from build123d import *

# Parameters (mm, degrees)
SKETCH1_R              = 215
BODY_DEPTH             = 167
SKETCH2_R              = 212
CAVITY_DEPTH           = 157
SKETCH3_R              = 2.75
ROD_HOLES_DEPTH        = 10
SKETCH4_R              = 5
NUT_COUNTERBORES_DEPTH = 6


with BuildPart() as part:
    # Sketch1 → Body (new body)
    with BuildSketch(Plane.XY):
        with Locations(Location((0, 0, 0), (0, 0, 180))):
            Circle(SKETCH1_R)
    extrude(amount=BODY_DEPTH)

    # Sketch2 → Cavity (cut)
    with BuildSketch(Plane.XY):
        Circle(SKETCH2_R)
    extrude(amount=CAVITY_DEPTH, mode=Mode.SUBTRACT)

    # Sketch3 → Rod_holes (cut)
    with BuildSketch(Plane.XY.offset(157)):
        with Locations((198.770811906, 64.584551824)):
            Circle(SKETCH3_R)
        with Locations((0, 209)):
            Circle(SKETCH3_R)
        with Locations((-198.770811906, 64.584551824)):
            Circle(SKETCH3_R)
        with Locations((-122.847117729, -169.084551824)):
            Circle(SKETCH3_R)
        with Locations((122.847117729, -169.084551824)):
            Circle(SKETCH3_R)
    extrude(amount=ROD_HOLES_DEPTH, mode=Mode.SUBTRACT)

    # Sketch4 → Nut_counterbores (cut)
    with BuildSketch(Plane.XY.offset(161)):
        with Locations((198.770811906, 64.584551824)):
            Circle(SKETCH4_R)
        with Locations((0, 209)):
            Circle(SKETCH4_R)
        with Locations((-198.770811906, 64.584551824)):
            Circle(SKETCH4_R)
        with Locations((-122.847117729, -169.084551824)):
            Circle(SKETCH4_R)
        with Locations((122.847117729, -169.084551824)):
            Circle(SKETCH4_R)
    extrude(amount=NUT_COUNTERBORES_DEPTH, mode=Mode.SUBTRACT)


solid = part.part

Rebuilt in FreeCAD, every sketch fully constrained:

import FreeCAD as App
import Part
import Sketcher

doc = App.newDocument("Part")
body = doc.addObject("PartDesign::Body", "Body")

sketch1 = doc.addObject("Sketcher::SketchObject", "Sketch")
body.addObject(sketch1)
sketch1.AttachmentSupport = (doc.XY_Plane, [""])
sketch1.MapMode = "FlatFace"
sketch1.addGeometry(Part.Circle(App.Vector(0, 0, 0), App.Vector(0, 0, 1), 215), False)
sketch1.addConstraint([
    Sketcher.Constraint("Coincident", 0, 3, -1, 1),
    Sketcher.Constraint("Diameter", 0, 430.0),
])
pad1 = doc.addObject("PartDesign::Pad", "Pad")
body.addObject(pad1)
pad1.Profile = sketch1
pad1.Length = 167

sketch2 = doc.addObject("Sketcher::SketchObject", "Sketch001")
body.addObject(sketch2)
sketch2.AttachmentSupport = (doc.XY_Plane, [""])
sketch2.MapMode = "FlatFace"
sketch2.addGeometry(Part.Circle(App.Vector(0, 0, 0), App.Vector(0, 0, 1), 212), False)
sketch2.addConstraint([
    Sketcher.Constraint("Coincident", 0, 3, -1, 1),
    Sketcher.Constraint("Diameter", 0, 424.0),
])
pocket1 = doc.addObject("PartDesign::Pocket", "Pocket")
body.addObject(pocket1)
pocket1.Profile = sketch2
pocket1.Length = 157
pocket1.Reversed = True

sketch3 = doc.addObject("Sketcher::SketchObject", "Sketch002")
body.addObject(sketch3)
sketch3.AttachmentSupport = (doc.XY_Plane, [""])
sketch3.MapMode = "FlatFace"
sketch3.AttachmentOffset = App.Placement(App.Vector(0, 0, 157), App.Rotation())
sketch3.addGeometry([
    Part.Circle(App.Vector(198.770812, 64.584552, 0), App.Vector(0, 0, 1), 2.75),
    Part.Circle(App.Vector(0, 209, 0), App.Vector(0, 0, 1), 2.75),
    Part.Circle(App.Vector(-198.770812, 64.584552, 0), App.Vector(0, 0, 1), 2.75),
    Part.Circle(App.Vector(-122.847118, -169.084552, 0), App.Vector(0, 0, 1), 2.75),
    Part.Circle(App.Vector(122.847118, -169.084552, 0), App.Vector(0, 0, 1), 2.75),
], False)
sketch3.addConstraint([
    Sketcher.Constraint("Equal", 0, 1),
    Sketcher.Constraint("Equal", 1, 2),
    Sketcher.Constraint("Equal", 2, 3),
    Sketcher.Constraint("Equal", 3, 4),
    Sketcher.Constraint("Symmetric", 0, 3, 2, 3, -2),
    Sketcher.Constraint("Symmetric", 3, 3, 4, 3, -2),
    Sketcher.Constraint("PointOnObject", 1, 3, -2),
    Sketcher.Constraint("Diameter", 0, 5.5),
    Sketcher.Constraint("DistanceY", -1, 1, 1, 3, 209.0),
    Sketcher.Constraint("DistanceX", -1, 1, 0, 3, 198.770812),
    Sketcher.Constraint("DistanceY", -1, 1, 0, 3, 64.584552),
    Sketcher.Constraint("DistanceY", 3, 3, -1, 1, 169.084552),
    Sketcher.Constraint("DistanceX", 3, 3, 0, 3, 321.61793),
])
pocket2 = doc.addObject("PartDesign::Pocket", "Pocket001")
body.addObject(pocket2)
pocket2.Profile = sketch3
pocket2.Length = 10
pocket2.Reversed = True

sketch4 = doc.addObject("Sketcher::SketchObject", "Sketch003")
body.addObject(sketch4)
sketch4.AttachmentSupport = (doc.XY_Plane, [""])
sketch4.MapMode = "FlatFace"
sketch4.AttachmentOffset = App.Placement(App.Vector(0, 0, 161), App.Rotation())
sketch4.addGeometry([
    Part.Circle(App.Vector(198.770812, 64.584552, 0), App.Vector(0, 0, 1), 5),
    Part.Circle(App.Vector(0, 209, 0), App.Vector(0, 0, 1), 5),
    Part.Circle(App.Vector(-198.770812, 64.584552, 0), App.Vector(0, 0, 1), 5),
    Part.Circle(App.Vector(-122.847118, -169.084552, 0), App.Vector(0, 0, 1), 5),
    Part.Circle(App.Vector(122.847118, -169.084552, 0), App.Vector(0, 0, 1), 5),
], False)
sketch4.addConstraint([
    Sketcher.Constraint("Equal", 0, 1),
    Sketcher.Constraint("Equal", 1, 2),
    Sketcher.Constraint("Equal", 2, 3),
    Sketcher.Constraint("Equal", 3, 4),
    Sketcher.Constraint("Symmetric", 0, 3, 2, 3, -2),
    Sketcher.Constraint("Symmetric", 3, 3, 4, 3, -2),
    Sketcher.Constraint("PointOnObject", 1, 3, -2),
    Sketcher.Constraint("Diameter", 0, 10.0),
    Sketcher.Constraint("DistanceY", -1, 1, 1, 3, 209.0),
    Sketcher.Constraint("DistanceX", -1, 1, 0, 3, 198.770812),
    Sketcher.Constraint("DistanceY", -1, 1, 0, 3, 64.584552),
    Sketcher.Constraint("DistanceY", 3, 3, -1, 1, 169.084552),
    Sketcher.Constraint("DistanceX", 3, 3, 0, 3, 321.61793),
])
pocket3 = doc.addObject("PartDesign::Pocket", "Pocket002")
body.addObject(pocket3)
pocket3.Profile = sketch4
pocket3.Length = 6
pocket3.Reversed = True

doc.recompute()
